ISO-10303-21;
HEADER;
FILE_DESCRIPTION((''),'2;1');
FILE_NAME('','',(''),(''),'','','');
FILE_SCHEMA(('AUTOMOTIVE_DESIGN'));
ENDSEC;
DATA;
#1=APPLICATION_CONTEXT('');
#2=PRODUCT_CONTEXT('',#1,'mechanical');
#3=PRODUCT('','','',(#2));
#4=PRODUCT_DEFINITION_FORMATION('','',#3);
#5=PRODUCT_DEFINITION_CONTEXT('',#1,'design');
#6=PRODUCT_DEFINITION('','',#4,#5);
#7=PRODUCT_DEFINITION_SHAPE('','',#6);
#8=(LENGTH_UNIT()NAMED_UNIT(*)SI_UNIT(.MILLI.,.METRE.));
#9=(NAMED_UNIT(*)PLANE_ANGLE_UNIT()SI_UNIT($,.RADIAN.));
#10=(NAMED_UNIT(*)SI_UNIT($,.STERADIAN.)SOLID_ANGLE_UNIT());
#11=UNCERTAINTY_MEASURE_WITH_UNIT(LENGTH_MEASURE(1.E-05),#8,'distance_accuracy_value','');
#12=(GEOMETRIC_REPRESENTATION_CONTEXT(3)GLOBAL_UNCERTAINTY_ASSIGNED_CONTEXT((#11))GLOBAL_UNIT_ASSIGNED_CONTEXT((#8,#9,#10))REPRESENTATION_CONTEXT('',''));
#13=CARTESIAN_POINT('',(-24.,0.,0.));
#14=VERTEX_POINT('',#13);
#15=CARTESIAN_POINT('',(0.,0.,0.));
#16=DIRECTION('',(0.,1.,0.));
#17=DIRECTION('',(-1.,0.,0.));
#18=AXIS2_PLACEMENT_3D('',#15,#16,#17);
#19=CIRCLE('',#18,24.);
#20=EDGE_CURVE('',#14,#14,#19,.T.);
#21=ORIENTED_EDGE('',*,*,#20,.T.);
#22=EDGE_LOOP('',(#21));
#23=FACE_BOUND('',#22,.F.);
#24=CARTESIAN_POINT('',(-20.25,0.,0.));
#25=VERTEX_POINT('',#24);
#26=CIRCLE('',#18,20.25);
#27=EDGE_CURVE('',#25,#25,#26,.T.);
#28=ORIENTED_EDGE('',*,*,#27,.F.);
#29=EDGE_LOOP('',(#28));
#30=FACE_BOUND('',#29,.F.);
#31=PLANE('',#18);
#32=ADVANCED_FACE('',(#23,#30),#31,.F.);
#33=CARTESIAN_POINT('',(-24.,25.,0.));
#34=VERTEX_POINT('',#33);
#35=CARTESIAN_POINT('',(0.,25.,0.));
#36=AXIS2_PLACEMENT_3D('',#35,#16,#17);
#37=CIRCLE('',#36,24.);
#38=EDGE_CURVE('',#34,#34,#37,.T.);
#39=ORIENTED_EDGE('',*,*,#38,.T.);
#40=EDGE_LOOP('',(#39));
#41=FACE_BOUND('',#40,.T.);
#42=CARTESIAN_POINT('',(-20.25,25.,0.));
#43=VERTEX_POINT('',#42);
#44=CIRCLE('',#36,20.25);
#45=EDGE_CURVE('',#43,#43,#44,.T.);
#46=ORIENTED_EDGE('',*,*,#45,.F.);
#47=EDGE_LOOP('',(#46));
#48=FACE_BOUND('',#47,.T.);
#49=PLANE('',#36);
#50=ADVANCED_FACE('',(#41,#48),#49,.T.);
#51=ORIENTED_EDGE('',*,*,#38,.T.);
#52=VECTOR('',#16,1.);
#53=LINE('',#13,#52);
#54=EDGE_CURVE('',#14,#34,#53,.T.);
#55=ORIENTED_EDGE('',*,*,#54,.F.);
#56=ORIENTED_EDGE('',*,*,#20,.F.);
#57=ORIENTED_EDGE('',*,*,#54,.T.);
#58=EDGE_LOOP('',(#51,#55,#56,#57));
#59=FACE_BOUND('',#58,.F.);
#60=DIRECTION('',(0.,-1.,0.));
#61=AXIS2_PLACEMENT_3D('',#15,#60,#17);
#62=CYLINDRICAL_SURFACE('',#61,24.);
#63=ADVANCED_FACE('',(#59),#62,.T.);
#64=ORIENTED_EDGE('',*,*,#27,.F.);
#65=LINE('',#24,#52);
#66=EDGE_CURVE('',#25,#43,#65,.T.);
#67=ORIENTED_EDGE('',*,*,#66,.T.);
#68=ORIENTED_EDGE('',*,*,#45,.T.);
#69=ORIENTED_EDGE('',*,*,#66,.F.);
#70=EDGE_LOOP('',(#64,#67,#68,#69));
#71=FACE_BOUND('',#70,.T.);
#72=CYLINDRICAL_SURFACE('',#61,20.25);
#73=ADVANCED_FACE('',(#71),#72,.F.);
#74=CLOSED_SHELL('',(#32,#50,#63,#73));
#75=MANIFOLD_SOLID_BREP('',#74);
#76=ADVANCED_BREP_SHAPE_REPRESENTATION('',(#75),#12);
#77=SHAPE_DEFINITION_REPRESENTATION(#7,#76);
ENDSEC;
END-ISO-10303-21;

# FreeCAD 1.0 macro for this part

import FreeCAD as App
import Part
import Sketcher
from FreeCAD import Vector
Q = App.Units.Quantity

doc = App.newDocument("Part")
params = doc.addObject("Spreadsheet::Sheet", "Params")
for row, (alias, value) in enumerate([
    ("sketch1_diameter", "48 mm"),
    ("sketch1_diameter2", "40.5 mm"),
    ("pad1_length", "25 mm"),
], start=1):
    params.set(f"A{row}", alias)
    params.set(f"B{row}", "=" + value)
    params.setAlias(f"B{row}", alias)

body = doc.addObject("PartDesign::Body", "Body")

# Sketch on XZ plane
sketch1 = body.newObject("Sketcher::SketchObject", "Sketch")
sketch1.AttachmentSupport = (doc.getObject("XZ_Plane"), [""])
sketch1.MapMode = "FlatFace"
sketch1.addGeometry(Part.Circle(Vector(0, 0, 0), Vector(0, 0, 1), 24), False)
sketch1.addGeometry(Part.Circle(Vector(0, 0, 0), Vector(0, 0, 1), 20), False)
sketch1.addConstraint(Sketcher.Constraint("Coincident", 0, 3, -1, 1))
sketch1.addConstraint(Sketcher.Constraint("Coincident", 1, 3, -1, 1))
sketch1.addConstraint(Sketcher.Constraint("Diameter", 0, Q("48 mm")))
sketch1.addConstraint(Sketcher.Constraint("Diameter", 1, Q("40.5 mm")))
sketch1.setExpression("Constraints[2]", "Params.sketch1_diameter")
sketch1.setExpression("Constraints[3]", "Params.sketch1_diameter2")
pad1 = body.newObject("PartDesign::Pad", "Pad")
pad1.Profile = sketch1
pad1.setExpression("Length", "Params.pad1_length")
pad1.Reversed = True

doc.recompute()
